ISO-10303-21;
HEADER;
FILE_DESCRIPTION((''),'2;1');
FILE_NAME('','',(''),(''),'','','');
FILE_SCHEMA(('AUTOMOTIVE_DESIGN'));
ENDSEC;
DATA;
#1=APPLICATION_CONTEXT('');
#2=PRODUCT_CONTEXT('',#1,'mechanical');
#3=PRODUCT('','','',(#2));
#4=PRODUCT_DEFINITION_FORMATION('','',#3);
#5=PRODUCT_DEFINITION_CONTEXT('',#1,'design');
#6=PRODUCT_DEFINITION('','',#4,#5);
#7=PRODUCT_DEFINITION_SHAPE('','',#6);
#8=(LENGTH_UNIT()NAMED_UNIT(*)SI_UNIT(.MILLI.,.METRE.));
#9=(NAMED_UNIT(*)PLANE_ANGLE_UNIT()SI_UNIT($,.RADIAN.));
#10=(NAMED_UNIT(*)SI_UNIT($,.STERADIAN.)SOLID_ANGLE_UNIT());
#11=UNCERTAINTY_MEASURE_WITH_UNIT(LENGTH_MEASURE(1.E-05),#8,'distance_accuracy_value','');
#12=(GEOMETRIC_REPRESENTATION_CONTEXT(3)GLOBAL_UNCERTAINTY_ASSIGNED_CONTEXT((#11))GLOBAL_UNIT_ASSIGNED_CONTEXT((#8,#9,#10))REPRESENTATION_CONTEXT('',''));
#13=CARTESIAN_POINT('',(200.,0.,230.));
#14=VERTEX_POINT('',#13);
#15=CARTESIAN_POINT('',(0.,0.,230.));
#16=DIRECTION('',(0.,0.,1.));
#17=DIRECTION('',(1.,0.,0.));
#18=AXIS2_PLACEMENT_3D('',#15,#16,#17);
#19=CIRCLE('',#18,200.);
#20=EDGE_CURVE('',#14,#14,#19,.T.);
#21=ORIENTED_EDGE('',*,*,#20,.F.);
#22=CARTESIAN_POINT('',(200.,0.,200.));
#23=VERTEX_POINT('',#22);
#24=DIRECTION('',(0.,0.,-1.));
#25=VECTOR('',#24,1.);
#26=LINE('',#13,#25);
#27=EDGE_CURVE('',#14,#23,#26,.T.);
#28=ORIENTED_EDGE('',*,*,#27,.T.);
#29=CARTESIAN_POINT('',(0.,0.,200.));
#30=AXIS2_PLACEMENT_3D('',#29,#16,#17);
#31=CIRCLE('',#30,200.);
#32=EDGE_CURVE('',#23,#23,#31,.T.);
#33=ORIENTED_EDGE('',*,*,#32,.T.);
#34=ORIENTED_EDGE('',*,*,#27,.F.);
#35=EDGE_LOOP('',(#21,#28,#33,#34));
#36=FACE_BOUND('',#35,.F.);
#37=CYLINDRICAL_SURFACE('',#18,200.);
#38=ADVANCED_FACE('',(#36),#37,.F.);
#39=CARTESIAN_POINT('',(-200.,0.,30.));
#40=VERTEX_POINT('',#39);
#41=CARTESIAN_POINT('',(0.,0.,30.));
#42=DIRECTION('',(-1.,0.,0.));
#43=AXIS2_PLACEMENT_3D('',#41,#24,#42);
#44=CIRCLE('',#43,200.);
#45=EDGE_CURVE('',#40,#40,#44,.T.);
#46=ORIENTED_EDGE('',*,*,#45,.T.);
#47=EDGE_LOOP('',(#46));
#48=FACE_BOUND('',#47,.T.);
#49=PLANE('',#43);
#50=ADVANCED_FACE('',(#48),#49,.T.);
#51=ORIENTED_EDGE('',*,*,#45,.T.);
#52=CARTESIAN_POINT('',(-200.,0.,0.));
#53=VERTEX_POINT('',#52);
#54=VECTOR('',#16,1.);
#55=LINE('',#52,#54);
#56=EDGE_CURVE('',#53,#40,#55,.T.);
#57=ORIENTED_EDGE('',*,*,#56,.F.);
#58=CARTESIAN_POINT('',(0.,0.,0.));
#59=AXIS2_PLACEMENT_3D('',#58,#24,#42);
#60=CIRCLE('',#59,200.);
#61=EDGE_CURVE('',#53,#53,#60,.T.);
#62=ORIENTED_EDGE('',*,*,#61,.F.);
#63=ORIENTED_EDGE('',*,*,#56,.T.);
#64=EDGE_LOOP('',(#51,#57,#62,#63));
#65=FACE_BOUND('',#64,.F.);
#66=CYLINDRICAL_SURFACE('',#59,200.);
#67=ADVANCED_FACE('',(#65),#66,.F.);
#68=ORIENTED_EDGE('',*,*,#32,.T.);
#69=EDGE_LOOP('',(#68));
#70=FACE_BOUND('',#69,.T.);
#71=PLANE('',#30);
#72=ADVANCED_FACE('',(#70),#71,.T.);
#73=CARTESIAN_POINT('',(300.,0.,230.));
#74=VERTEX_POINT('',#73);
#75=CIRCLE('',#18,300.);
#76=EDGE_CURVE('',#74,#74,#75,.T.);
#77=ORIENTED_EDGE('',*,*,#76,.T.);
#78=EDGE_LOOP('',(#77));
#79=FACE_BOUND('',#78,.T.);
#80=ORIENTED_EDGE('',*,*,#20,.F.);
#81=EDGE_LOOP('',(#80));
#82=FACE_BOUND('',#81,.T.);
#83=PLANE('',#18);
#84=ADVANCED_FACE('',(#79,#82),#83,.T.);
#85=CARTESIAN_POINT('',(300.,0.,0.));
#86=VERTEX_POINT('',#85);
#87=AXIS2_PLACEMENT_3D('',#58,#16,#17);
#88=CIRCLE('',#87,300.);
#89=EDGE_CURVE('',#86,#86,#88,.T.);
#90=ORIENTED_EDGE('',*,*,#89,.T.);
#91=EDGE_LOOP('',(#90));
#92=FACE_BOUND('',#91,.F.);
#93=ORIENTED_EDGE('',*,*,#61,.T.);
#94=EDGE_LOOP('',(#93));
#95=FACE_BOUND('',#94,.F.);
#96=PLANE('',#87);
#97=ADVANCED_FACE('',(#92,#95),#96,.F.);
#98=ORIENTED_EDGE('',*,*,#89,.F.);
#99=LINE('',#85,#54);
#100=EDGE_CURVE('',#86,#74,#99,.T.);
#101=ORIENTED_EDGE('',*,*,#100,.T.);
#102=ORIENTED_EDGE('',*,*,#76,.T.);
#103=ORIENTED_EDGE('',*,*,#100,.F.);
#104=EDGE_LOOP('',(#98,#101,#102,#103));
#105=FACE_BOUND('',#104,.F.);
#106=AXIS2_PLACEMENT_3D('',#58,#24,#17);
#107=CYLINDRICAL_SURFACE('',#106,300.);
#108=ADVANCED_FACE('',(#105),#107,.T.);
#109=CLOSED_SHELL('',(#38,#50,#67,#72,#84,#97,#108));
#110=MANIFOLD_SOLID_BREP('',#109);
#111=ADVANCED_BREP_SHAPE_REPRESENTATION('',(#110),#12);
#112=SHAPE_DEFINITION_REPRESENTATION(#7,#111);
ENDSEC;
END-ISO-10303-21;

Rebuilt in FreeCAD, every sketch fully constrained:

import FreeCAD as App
import Part
import Sketcher
Q = App.Units.Quantity

doc = App.newDocument("Part")
params = doc.addObject("Spreadsheet::Sheet", "Params")
for row, (alias, value) in enumerate([
    ("sketch1_diameter", "600 mm"),
    ("pad1_length", "230 mm"),
    ("sketch2_diameter", "400 mm"),
    ("pocket1_length", "30 mm"),
    ("sketch3_diameter", "400 mm"),
    ("pocket2_length", "30 mm"),
], start=1):
    params.set(f"A{row}", alias)
    params.set(f"B{row}", "=" + value)
    params.setAlias(f"B{row}", alias)

body = doc.addObject("PartDesign::Body", "Body")

# Sketch on XY plane
sketch1 = doc.addObject("Sketcher::SketchObject", "Sketch")
body.addObject(sketch1)
sketch1.AttachmentSupport = (doc.XY_Plane, [""])
sketch1.MapMode = "FlatFace"
sketch1.addGeometry(Part.Circle(App.Vector(0, 0, 0), App.Vector(0, 0, 1), 300), False)
sketch1.addConstraint([
    Sketcher.Constraint("Coincident", 0, 3, -1, 1),
    Sketcher.Constraint("Diameter", 0, Q("600 mm")),
])
sketch1.setExpression("Constraints[1]", "Params.sketch1_diameter")
pad1 = doc.addObject("PartDesign::Pad", "Pad")
body.addObject(pad1)
pad1.Profile = sketch1
pad1.setExpression("Length", "Params.pad1_length")

# Sketch on XY plane
sketch2 = doc.addObject("Sketcher::SketchObject", "Sketch001")
body.addObject(sketch2)
sketch2.AttachmentSupport = (doc.XY_Plane, [""])
sketch2.MapMode = "FlatFace"
sketch2.AttachmentOffset = App.Placement(App.Vector(0, 0, 230), App.Rotation())
sketch2.addGeometry(Part.Circle(App.Vector(0, 0, 0), App.Vector(0, 0, 1), 200), False)
sketch2.addConstraint([
    Sketcher.Constraint("Coincident", 0, 3, -1, 1),
    Sketcher.Constraint("Diameter", 0, Q("400 mm")),
])
sketch2.setExpression("Constraints[1]", "Params.sketch2_diameter")
pocket1 = doc.addObject("PartDesign::Pocket", "Pocket")
body.addObject(pocket1)
pocket1.Profile = sketch2
pocket1.setExpression("Length", "Params.pocket1_length")

# Sketch on XY plane
sketch3 = doc.addObject("Sketcher::SketchObject", "Sketch002")
body.addObject(sketch3)
sketch3.AttachmentSupport = (doc.XY_Plane, [""])
sketch3.MapMode = "FlatFace"
sketch3.addGeometry(Part.Circle(App.Vector(0, 0, 0), App.Vector(0, 0, 1), 200), False)
sketch3.addConstraint([
    Sketcher.Constraint("Coincident", 0, 3, -1, 1),
    Sketcher.Constraint("Diameter", 0, Q("400 mm")),
])
sketch3.setExpression("Constraints[1]", "Params.sketch3_diameter")
pocket2 = doc.addObject("PartDesign::Pocket", "Pocket001")
body.addObject(pocket2)
pocket2.Profile = sketch3
pocket2.setExpression("Length", "Params.pocket2_length")
pocket2.Reversed = True

doc.recompute()
